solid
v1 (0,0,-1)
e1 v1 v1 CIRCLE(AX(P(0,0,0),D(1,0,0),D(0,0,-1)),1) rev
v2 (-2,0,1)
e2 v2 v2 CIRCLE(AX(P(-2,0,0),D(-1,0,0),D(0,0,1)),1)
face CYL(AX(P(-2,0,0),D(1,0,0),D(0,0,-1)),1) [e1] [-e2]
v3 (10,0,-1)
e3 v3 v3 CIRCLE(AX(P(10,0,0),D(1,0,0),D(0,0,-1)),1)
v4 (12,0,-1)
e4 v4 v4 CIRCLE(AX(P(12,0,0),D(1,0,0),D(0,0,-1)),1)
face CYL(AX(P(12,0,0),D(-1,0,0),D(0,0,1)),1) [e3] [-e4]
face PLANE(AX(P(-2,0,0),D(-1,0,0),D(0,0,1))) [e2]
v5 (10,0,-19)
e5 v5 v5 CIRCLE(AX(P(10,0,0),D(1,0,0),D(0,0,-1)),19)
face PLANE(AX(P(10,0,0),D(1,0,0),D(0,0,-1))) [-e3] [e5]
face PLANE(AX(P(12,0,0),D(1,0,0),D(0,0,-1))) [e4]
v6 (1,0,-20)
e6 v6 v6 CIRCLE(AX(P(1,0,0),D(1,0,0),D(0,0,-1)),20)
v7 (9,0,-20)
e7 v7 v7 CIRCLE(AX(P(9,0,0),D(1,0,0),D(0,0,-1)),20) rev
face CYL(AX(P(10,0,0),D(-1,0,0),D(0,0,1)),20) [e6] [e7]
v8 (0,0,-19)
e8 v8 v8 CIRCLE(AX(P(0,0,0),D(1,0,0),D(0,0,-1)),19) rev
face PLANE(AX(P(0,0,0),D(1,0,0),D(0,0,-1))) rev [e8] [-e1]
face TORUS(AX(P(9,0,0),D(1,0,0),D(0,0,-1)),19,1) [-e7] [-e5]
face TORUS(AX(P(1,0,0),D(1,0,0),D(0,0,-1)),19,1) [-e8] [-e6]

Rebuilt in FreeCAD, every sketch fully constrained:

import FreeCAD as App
import Part
import Sketcher
from FreeCAD import Vector
Q = App.Units.Quantity


def edges_at(feature, points):
    """Names of the edges that pass closest to the given points."""
    edges = feature.Shape.Edges
    near = lambda p: min(range(len(edges)), key=lambda i: edges[i].distToShape(Part.Vertex(*p))[0])
    return sorted({f"Edge{near(p) + 1}" for p in points})

doc = App.newDocument("Part")
params = doc.addObject("Spreadsheet::Sheet", "Params")
for row, (alias, value) in enumerate([
    ("sketch1_diameter", "40 mm"),
    ("pad1_length", "10 mm"),
    ("sketch2_diameter", "2 mm"),
    ("pad2_length", "2 mm"),
    ("sketch3_diameter", "2 mm"),
    ("pad3_length", "2 mm"),
    ("fillet_radius", "1 mm"),
], start=1):
    params.set(f"A{row}", alias)
    params.set(f"B{row}", "=" + value)
    params.setAlias(f"B{row}", alias)

body = doc.addObject("PartDesign::Body", "Body")

sketch1 = doc.addObject("Sketcher::SketchObject", "Sketch")
body.addObject(sketch1)
sketch1.AttachmentSupport = (doc.YZ_Plane, [""])
sketch1.MapMode = "FlatFace"
sketch1.addGeometry(Part.Circle(Vector(0, 0, 0), Vector(0, 0, 1), 20), False)
sketch1.addConstraint(Sketcher.Constraint("Coincident", 0, 3, -1, 1))
sketch1.addConstraint(Sketcher.Constraint("Diameter", 0, Q("40 mm")))
sketch1.setExpression("Constraints[1]", "Params.sketch1_diameter")
pad1 = doc.addObject("PartDesign::Pad", "Pad")
body.addObject(pad1)
pad1.Profile = sketch1
pad1.setExpression("Length", "Params.pad1_length")

sketch2 = doc.addObject("Sketcher::SketchObject", "Sketch001")
body.addObject(sketch2)
sketch2.AttachmentSupport = (doc.YZ_Plane, [""])
sketch2.MapMode = "FlatFace"
sketch2.AttachmentOffset = App.Placement(Vector(0, 0, 10), App.Rotation())
sketch2.addGeometry(Part.Circle(Vector(0, 0, 0), Vector(0, 0, 1), 1), False)
sketch2.addConstraint(Sketcher.Constraint("Coincident", 0, 3, -1, 1))
sketch2.addConstraint(Sketcher.Constraint("Diameter", 0, Q("2 mm")))
sketch2.setExpression("Constraints[1]", "Params.sketch2_diameter")
pad2 = doc.addObject("PartDesign::Pad", "Pad001")
body.addObject(pad2)
pad2.Profile = sketch2
pad2.setExpression("Length", "Params.pad2_length")

sketch3 = doc.addObject("Sketcher::SketchObject", "Sketch002")
body.addObject(sketch3)
sketch3.AttachmentSupport = (doc.YZ_Plane, [""])
sketch3.MapMode = "FlatFace"
sketch3.addGeometry(Part.Circle(Vector(0, 0, 0), Vector(0, 0, 1), 1), False)
sketch3.addConstraint(Sketcher.Constraint("Coincident", 0, 3, -1, 1))
sketch3.addConstraint(Sketcher.Constraint("Diameter", 0, Q("2 mm")))
sketch3.setExpression("Constraints[1]", "Params.sketch3_diameter")
pad3 = doc.addObject("PartDesign::Pad", "Pad002")
body.addObject(pad3)
pad3.Profile = sketch3
pad3.setExpression("Length", "Params.pad3_length")
pad3.Reversed = True
doc.recompute()

fillet = doc.addObject("PartDesign::Fillet", "Fillet")
body.addObject(fillet)
fillet.Base = (pad3, edges_at(pad3, [(0, 0, 20), (10, 0, 20)]))
fillet.setExpression("Radius", "Params.fillet_radius")

doc.recompute()
